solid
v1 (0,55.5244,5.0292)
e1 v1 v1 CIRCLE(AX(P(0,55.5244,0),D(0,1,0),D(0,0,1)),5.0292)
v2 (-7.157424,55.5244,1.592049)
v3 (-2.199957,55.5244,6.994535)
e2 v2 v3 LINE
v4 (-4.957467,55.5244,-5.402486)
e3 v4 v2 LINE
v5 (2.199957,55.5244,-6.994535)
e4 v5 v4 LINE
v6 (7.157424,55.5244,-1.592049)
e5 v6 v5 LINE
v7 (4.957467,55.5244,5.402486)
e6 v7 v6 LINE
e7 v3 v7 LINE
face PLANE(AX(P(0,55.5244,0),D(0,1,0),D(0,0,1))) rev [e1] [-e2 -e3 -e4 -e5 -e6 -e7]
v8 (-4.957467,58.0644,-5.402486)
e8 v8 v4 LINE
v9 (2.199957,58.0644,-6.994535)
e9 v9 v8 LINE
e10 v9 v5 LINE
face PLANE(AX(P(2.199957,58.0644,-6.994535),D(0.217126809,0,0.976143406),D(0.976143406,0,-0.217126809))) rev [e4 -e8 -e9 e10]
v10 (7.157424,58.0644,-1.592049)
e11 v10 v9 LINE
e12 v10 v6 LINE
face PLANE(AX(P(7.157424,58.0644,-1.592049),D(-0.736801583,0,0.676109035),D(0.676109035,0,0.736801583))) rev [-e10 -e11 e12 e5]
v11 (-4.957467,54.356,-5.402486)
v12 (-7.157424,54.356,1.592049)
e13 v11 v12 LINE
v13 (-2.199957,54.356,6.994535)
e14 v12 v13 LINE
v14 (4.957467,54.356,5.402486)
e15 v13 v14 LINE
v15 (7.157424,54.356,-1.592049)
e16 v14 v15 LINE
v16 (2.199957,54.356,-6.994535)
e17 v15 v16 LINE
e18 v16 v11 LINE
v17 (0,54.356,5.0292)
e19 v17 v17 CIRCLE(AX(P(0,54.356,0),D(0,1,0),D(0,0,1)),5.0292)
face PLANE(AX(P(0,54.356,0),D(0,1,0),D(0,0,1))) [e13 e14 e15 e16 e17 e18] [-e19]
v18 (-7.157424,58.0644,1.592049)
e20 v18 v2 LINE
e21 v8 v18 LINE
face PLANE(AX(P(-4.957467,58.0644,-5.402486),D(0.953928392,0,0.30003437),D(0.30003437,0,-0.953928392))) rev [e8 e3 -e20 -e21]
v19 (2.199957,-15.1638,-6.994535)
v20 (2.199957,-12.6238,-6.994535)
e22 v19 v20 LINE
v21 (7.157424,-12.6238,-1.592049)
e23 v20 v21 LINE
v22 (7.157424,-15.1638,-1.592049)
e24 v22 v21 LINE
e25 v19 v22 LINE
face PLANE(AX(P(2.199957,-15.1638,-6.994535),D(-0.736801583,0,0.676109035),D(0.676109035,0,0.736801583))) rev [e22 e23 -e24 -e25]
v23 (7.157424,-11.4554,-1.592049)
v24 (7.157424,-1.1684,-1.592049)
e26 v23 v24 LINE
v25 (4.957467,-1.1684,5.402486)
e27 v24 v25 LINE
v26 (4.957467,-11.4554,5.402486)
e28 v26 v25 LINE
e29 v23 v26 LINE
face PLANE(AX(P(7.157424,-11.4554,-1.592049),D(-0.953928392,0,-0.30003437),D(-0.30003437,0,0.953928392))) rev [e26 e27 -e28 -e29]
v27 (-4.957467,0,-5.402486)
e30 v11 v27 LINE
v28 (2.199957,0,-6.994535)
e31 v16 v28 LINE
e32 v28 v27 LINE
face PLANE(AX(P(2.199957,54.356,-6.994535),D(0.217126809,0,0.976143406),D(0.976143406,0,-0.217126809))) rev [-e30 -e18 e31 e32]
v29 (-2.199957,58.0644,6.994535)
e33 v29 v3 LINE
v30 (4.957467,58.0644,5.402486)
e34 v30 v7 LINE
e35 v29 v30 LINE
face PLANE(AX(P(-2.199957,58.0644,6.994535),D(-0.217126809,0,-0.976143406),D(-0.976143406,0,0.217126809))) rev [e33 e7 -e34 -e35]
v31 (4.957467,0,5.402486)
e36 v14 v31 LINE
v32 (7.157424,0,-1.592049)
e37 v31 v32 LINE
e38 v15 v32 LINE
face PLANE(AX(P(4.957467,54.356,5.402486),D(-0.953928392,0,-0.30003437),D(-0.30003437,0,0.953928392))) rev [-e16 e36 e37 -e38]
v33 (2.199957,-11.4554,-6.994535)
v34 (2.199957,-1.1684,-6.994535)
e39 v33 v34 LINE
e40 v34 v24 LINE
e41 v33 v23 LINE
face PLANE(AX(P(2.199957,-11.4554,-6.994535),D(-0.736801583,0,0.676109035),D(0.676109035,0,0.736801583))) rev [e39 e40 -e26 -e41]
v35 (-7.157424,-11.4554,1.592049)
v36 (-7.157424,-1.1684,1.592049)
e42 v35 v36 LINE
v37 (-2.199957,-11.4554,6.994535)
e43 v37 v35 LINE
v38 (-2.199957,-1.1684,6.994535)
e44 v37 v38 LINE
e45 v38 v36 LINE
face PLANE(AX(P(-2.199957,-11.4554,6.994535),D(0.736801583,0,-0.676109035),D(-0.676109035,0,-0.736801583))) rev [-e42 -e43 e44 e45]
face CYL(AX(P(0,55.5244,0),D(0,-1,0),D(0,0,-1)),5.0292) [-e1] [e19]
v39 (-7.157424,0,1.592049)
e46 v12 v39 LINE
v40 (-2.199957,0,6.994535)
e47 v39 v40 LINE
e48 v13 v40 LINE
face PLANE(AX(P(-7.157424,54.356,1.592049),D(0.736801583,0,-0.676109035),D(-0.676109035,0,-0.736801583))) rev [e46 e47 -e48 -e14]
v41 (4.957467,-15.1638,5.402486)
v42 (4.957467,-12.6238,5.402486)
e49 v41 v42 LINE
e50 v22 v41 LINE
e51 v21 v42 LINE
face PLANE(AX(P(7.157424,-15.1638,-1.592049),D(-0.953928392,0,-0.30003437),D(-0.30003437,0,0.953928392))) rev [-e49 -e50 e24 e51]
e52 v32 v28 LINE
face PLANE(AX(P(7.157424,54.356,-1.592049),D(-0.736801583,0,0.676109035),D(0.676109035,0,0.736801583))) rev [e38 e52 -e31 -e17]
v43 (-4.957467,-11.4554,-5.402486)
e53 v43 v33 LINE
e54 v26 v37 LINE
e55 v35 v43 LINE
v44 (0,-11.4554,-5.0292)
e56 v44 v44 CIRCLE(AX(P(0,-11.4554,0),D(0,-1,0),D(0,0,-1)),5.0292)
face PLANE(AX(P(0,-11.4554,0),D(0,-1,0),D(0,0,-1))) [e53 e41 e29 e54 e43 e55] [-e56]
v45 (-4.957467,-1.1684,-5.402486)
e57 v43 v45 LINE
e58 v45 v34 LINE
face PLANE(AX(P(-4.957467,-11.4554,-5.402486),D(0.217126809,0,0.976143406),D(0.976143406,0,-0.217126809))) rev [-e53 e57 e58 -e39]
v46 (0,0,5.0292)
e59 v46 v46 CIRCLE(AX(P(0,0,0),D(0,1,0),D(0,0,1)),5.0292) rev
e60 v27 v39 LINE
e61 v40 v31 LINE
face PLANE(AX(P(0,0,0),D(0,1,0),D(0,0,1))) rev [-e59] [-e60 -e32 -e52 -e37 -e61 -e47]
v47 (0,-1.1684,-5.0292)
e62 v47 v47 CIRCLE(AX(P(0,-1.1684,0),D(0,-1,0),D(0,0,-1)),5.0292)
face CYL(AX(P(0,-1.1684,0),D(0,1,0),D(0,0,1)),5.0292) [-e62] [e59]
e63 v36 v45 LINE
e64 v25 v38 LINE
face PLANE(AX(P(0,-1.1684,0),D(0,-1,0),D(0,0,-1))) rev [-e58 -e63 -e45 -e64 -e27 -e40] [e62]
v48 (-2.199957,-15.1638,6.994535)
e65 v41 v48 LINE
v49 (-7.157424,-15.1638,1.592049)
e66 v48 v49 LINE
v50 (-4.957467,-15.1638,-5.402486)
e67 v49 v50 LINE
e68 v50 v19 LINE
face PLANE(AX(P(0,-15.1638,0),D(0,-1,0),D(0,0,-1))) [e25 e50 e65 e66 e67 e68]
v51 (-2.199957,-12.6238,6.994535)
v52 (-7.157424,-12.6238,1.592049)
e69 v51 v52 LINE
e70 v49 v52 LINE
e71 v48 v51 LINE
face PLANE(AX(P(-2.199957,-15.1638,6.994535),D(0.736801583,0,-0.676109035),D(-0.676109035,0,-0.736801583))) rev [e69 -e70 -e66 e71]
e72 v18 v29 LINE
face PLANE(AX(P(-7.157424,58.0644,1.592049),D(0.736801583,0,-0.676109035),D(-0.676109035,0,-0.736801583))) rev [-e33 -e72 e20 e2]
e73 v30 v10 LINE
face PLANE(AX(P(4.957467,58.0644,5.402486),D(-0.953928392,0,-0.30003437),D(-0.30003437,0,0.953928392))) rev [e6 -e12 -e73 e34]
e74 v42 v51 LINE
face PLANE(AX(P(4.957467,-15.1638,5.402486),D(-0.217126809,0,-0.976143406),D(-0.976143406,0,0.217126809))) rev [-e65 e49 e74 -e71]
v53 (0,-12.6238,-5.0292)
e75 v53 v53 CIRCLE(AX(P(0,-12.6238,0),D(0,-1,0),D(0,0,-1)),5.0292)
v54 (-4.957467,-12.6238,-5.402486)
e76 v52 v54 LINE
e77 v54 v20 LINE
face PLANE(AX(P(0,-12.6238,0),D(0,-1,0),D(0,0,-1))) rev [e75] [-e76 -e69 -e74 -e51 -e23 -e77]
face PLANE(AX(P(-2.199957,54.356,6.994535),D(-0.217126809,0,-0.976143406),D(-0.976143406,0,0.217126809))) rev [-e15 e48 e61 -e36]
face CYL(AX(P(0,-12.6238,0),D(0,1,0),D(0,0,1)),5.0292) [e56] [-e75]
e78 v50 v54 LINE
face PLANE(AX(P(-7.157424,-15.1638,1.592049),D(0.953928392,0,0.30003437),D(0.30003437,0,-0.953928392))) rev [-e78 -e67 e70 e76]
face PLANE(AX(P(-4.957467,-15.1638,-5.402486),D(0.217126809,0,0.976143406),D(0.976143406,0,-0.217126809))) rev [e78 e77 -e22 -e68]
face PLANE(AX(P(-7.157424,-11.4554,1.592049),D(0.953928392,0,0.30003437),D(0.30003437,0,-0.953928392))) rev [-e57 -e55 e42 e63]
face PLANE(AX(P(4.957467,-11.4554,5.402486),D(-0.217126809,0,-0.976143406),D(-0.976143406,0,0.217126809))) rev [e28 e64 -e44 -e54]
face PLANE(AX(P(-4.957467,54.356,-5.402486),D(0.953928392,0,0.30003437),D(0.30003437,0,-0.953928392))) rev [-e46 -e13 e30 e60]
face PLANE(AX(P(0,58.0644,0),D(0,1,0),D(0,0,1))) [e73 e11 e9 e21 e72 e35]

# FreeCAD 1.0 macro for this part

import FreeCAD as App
import Part
import Sketcher
Q = App.Units.Quantity


def add_polygon(sketch, points):
    """Adds a closed chain of lines whose ends are joined by coincident constraints."""
    first, n = sketch.GeometryCount, len(points)
    for a, b in zip(points, points[1:] + points[:1]):
        sketch.addGeometry(Part.LineSegment(App.Vector(*a, 0), App.Vector(*b, 0)), False)
    for i in range(n):
        sketch.addConstraint(Sketcher.Constraint("Coincident", first + i, 2, first + (i + 1) % n, 1))

doc = App.newDocument("Part")
params = doc.addObject("Spreadsheet::Sheet", "Params")
for row, (alias, value) in enumerate([
    ("pad1_length", "2.14 in"),
    ("sketch2_diameter", "0.396 in"),
    ("pad2_length", "0.046 in"),
    ("pad3_length", "0.1 in"),
    ("sketch4_diameter", "0.396 in"),
    ("pad4_length", "0.046 in"),
    ("pad5_length", "0.405 in"),
    ("sketch6_diameter", "0.396 in"),
    ("pad6_length", "0.046 in"),
    ("pad7_length", "0.1 in"),
], start=1):
    params.set(f"A{row}", alias)
    params.set(f"B{row}", "=" + value)
    params.setAlias(f"B{row}", alias)

body = doc.addObject("PartDesign::Body", "Body")

# Sketch on XZ plane
sketch1 = body.newObject("Sketcher::SketchObject", "Sketch")
sketch1.AttachmentSupport = (doc.getObject("XZ_Plane"), [""])
sketch1.MapMode = "FlatFace"
add_polygon(sketch1, [(4.957467, 5.402486), (7.157424, -1.592049), (2.199957, -6.994535), (-4.957467, -5.402486), (-7.157424, 1.592049), (-2.199957, 6.994535)])  # lines 0-5
sketch1.addConstraint([
    Sketcher.Constraint("Symmetric", 0, 2, 3, 2, -1, 1),
    Sketcher.Constraint("Symmetric", 1, 2, 4, 2, -1, 1),
    Sketcher.Constraint("Symmetric", 2, 2, 5, 2, -1, 1),
    Sketcher.Constraint("Equal", 0, 1),
    Sketcher.Constraint("Equal", 1, 2),
    Sketcher.Constraint("DistanceY", 0, 2, 3, 2, Q("3.184099 mm")),
    Sketcher.Constraint("Distance", 0, Q("7.332348 mm")),
    Sketcher.Constraint("DistanceY", 1, 2, 2, 2, Q("1.592049 mm")),
    Sketcher.Constraint("DistanceX", 2, 2, 0, 2, Q("12.114891 mm")),
])
pad1 = body.newObject("PartDesign::Pad", "Pad")
pad1.Profile = sketch1
pad1.setExpression("Length", "Params.pad1_length")
pad1.Reversed = True

# Sketch on XZ plane
sketch2 = body.newObject("Sketcher::SketchObject", "Sketch001")
sketch2.AttachmentSupport = (doc.getObject("XZ_Plane"), [""])
sketch2.MapMode = "FlatFace"
sketch2.AttachmentOffset = App.Placement(App.Vector(0, 0, -2.14 * 25.4), App.Rotation())
sketch2.addGeometry(Part.Circle(App.Vector(0, 0, 0), App.Vector(0, 0, 1), 5.0292), False)
sketch2.addConstraint([
    Sketcher.Constraint("Coincident", 0, 3, -1, 1),
    Sketcher.Constraint("Diameter", 0, Q("0.396 in")),
])
sketch2.setExpression("Constraints[1]", "Params.sketch2_diameter")
pad2 = body.newObject("PartDesign::Pad", "Pad001")
pad2.Profile = sketch2
pad2.setExpression("Length", "Params.pad2_length")
pad2.Reversed = True

# Sketch on XZ plane
sketch3 = body.newObject("Sketcher::SketchObject", "Sketch002")
sketch3.AttachmentSupport = (doc.getObject("XZ_Plane"), [""])
sketch3.MapMode = "FlatFace"
sketch3.AttachmentOffset = App.Placement(App.Vector(0, 0, -2.186 * 25.4), App.Rotation())
add_polygon(sketch3, [(-2.199957, 6.994535), (4.957467, 5.402486), (7.157424, -1.592049), (2.199957, -6.994535), (-4.957467, -5.402486), (-7.157424, 1.592049)])  # lines 0-5
sketch3.addConstraint([
    Sketcher.Constraint("Symmetric", 0, 2, 3, 2, -1, 1),
    Sketcher.Constraint("Symmetric", 1, 2, 4, 2, -1, 1),
    Sketcher.Constraint("Symmetric", 2, 2, 5, 2, -1, 1),
    Sketcher.Constraint("Equal", 0, 1),
    Sketcher.Constraint("Equal", 1, 2),
    Sketcher.Constraint("DistanceY", 1, 2, 4, 2, Q("3.184099 mm")),
    Sketcher.Constraint("Distance", 0, Q("7.332348 mm")),
    Sketcher.Constraint("DistanceX", 2, 2, 0, 2, Q("2.75751 mm")),
    Sketcher.Constraint("DistanceY", 2, 2, 0, 2, Q("12.397021 mm")),
])
pad3 = body.newObject("PartDesign::Pad", "Pad002")
pad3.Profile = sketch3
pad3.setExpression("Length", "Params.pad3_length")
pad3.Reversed = True

# Sketch on XZ plane
sketch4 = body.newObject("Sketcher::SketchObject", "Sketch003")
sketch4.AttachmentSupport = (doc.getObject("XZ_Plane"), [""])
sketch4.MapMode = "FlatFace"
sketch4.AttachmentOffset = App.Placement(App.Vector(0, 0, 0.046 * 25.4), App.Rotation())
sketch4.addGeometry(Part.Circle(App.Vector(0, 0, 0), App.Vector(0, 0, 1), 5.0292), False)
sketch4.addConstraint([
    Sketcher.Constraint("Coincident", 0, 3, -1, 1),
    Sketcher.Constraint("Diameter", 0, Q("0.396 in")),
])
sketch4.setExpression("Constraints[1]", "Params.sketch4_diameter")
pad4 = body.newObject("PartDesign::Pad", "Pad003")
pad4.Profile = sketch4
pad4.setExpression("Length", "Params.pad4_length")
pad4.Reversed = True

# Sketch on XZ plane
sketch5 = body.newObject("Sketcher::SketchObject", "Sketch004")
sketch5.AttachmentSupport = (doc.getObject("XZ_Plane"), [""])
sketch5.MapMode = "FlatFace"
sketch5.AttachmentOffset = App.Placement(App.Vector(0, 0, 0.046 * 25.4), App.Rotation())
add_polygon(sketch5, [(4.957467, 5.402486), (-2.199957, 6.994535), (-7.157424, 1.592049), (-4.957467, -5.402486), (2.199957, -6.994535), (7.157424, -1.592049)])  # lines 0-5
sketch5.addConstraint([
    Sketcher.Constraint("Symmetric", 0, 2, 3, 2, -1, 1),
    Sketcher.Constraint("Symmetric", 1, 2, 4, 2, -1, 1),
    Sketcher.Constraint("Symmetric", 2, 2, 5, 2, -1, 1),
    Sketcher.Constraint("Equal", 0, 1),
    Sketcher.Constraint("Equal", 1, 2),
    Sketcher.Constraint("DistanceY", 4, 2, 1, 2, Q("3.184099 mm")),
    Sketcher.Constraint("Distance", 0, Q("7.332348 mm")),
    Sketcher.Constraint("DistanceX", 2, 2, 0, 2, Q("2.75751 mm")),
    Sketcher.Constraint("DistanceY", 2, 2, 0, 2, Q("12.397021 mm")),
])
pad5 = body.newObject("PartDesign::Pad", "Pad004")
pad5.Profile = sketch5
pad5.setExpression("Length", "Params.pad5_length")

# Sketch on XZ plane
sketch6 = body.newObject("Sketcher::SketchObject", "Sketch005")
sketch6.AttachmentSupport = (doc.getObject("XZ_Plane"), [""])
sketch6.MapMode = "FlatFace"
sketch6.AttachmentOffset = App.Placement(App.Vector(0, 0, 0.497 * 25.4), App.Rotation())
sketch6.addGeometry(Part.Circle(App.Vector(0, 0, 0), App.Vector(0, 0, 1), 5.0292), False)
sketch6.addConstraint([
    Sketcher.Constraint("Coincident", 0, 3, -1, 1),
    Sketcher.Constraint("Diameter", 0, Q("0.396 in")),
])
sketch6.setExpression("Constraints[1]", "Params.sketch6_diameter")
pad6 = body.newObject("PartDesign::Pad", "Pad005")
pad6.Profile = sketch6
pad6.setExpression("Length", "Params.pad6_length")
pad6.Reversed = True

# Sketch on XZ plane
sketch7 = body.newObject("Sketcher::SketchObject", "Sketch006")
sketch7.AttachmentSupport = (doc.getObject("XZ_Plane"), [""])
sketch7.MapMode = "FlatFace"
sketch7.AttachmentOffset = App.Placement(App.Vector(0, 0, 0.497 * 25.4), App.Rotation())
add_polygon(sketch7, [(7.157424, -1.592049), (4.957467, 5.402486), (-2.199957, 6.994535), (-7.157424, 1.592049), (-4.957467, -5.402486), (2.199957, -6.994535)])  # lines 0-5
sketch7.addConstraint([
    Sketcher.Constraint("Symmetric", 0, 2, 3, 2, -1, 1),
    Sketcher.Constraint("Symmetric", 1, 2, 4, 2, -1, 1),
    Sketcher.Constraint("Symmetric", 2, 2, 5, 2, -1, 1),
    Sketcher.Constraint("Equal", 0, 1),
    Sketcher.Constraint("Equal", 1, 2),
    Sketcher.Constraint("DistanceY", 5, 2, 2, 2, Q("3.184099 mm")),
    Sketcher.Constraint("Distance", 0, Q("7.332348 mm")),
    Sketcher.Constraint("DistanceY", 0, 2, 1, 2, Q("1.592049 mm")),
    Sketcher.Constraint("DistanceX", 2, 2, 0, 2, Q("12.114891 mm")),
])
pad7 = body.newObject("PartDesign::Pad", "Pad006")
pad7.Profile = sketch7
pad7.setExpression("Length", "Params.pad7_length")

doc.recompute()
